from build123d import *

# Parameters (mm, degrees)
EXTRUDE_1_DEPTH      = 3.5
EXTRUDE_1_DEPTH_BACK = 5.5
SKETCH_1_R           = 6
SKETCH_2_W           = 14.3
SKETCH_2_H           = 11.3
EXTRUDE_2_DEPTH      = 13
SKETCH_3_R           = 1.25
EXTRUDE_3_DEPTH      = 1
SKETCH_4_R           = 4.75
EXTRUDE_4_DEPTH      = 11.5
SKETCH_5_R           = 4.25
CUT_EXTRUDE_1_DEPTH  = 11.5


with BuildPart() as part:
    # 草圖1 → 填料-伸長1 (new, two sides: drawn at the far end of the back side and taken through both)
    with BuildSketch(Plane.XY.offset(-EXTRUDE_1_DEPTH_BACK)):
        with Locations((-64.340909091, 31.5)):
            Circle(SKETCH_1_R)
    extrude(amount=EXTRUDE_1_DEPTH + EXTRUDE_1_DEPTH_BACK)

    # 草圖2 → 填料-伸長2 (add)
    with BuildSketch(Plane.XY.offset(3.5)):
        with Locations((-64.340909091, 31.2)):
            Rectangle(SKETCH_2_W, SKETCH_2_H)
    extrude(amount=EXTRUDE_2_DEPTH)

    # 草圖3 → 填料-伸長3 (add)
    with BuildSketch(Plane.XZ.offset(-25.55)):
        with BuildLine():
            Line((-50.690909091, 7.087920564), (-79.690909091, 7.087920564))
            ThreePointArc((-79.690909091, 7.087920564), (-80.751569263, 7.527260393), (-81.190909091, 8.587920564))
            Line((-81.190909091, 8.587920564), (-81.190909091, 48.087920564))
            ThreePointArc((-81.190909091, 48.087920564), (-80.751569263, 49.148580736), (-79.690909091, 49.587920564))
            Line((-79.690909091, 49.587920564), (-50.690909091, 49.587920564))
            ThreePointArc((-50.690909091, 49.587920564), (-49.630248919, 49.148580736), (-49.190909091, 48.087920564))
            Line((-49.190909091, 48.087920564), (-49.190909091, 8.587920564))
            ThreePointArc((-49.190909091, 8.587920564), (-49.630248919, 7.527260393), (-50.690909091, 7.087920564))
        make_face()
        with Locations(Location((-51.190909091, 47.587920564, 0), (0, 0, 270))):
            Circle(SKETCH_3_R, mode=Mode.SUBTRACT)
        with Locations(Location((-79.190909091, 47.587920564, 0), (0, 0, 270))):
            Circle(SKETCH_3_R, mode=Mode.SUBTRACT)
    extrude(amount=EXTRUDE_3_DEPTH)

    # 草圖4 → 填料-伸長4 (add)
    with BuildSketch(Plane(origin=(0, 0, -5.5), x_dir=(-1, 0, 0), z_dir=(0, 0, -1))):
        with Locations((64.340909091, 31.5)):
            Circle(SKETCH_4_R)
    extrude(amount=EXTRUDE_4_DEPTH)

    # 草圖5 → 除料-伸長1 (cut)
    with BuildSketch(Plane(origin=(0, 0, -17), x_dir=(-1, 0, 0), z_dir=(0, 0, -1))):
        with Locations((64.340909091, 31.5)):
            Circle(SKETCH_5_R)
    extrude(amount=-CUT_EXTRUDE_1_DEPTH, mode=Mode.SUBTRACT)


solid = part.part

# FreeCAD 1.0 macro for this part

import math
import FreeCAD as App
import Part
import Sketcher
from FreeCAD import Vector


def add_polygon(sketch, points):
    """Adds a closed chain of lines whose ends are joined by coincident constraints."""
    first, n = sketch.GeometryCount, len(points)
    for a, b in zip(points, points[1:] + points[:1]):
        sketch.addGeometry(Part.LineSegment(App.Vector(*a, 0), App.Vector(*b, 0)), False)
    for i in range(n):
        sketch.addConstraint(Sketcher.Constraint("Coincident", first + i, 2, first + (i + 1) % n, 1))

doc = App.newDocument("Part")
body = doc.addObject("PartDesign::Body", "Body")

sketch1 = doc.addObject("Sketcher::SketchObject", "Sketch")
body.addObject(sketch1)
sketch1.AttachmentSupport = (doc.XY_Plane, [""])
sketch1.MapMode = "FlatFace"
sketch1.addGeometry(Part.Circle(Vector(-64, 32, 0), Vector(0, 0, 1), 6), False)
sketch1.addConstraint([
    Sketcher.Constraint("Diameter", 0, 12.0),
    Sketcher.Constraint("DistanceY", -1, 1, 0, 3, 31.5),
    Sketcher.Constraint("DistanceX", 0, 3, -1, 1, 64.340909),
])
pad1 = doc.addObject("PartDesign::Pad", "Pad")
body.addObject(pad1)
pad1.Profile = sketch1
pad1.Type = "TwoLengths"
pad1.Length = 3.5
pad1.Length2 = 5.5

sketch2 = doc.addObject("Sketcher::SketchObject", "Sketch001")
body.addObject(sketch2)
sketch2.AttachmentSupport = (doc.XY_Plane, [""])
sketch2.MapMode = "FlatFace"
sketch2.AttachmentOffset = App.Placement(Vector(0, 0, 3.5), App.Rotation())
add_polygon(sketch2, [(-71, 37), (-71, 26), (-57, 26), (-57, 37)])
sketch2.addConstraint([
    Sketcher.Constraint("Vertical", 0),
    Sketcher.Constraint("Horizontal", 1),
    Sketcher.Constraint("Vertical", 2),
    Sketcher.Constraint("Horizontal", 3),
    Sketcher.Constraint("DistanceX", 1, 1, 1, 2, 14.3),
    Sketcher.Constraint("DistanceY", 0, 2, 0, 1, 11.3),
    Sketcher.Constraint("DistanceY", -1, 1, 0, 2, 25.55),
    Sketcher.Constraint("DistanceX", 0, 2, -1, 1, 71.490909),
])
pad2 = doc.addObject("PartDesign::Pad", "Pad001")
body.addObject(pad2)
pad2.Profile = sketch2
pad2.Length = 13

sketch3 = doc.addObject("Sketcher::SketchObject", "Sketch002")
body.addObject(sketch3)
sketch3.AttachmentSupport = (doc.XZ_Plane, [""])
sketch3.MapMode = "FlatFace"
sketch3.AttachmentOffset = App.Placement(Vector(0, 0, -25.55), App.Rotation())
sketch3.addGeometry([
    Part.LineSegment(Vector(-79.7, 7.1, 0), Vector(-50.7, 7.1, 0)),
    Part.ArcOfCircle(Part.Circle(Vector(-50.7, 8.6, 0), Vector(0, 0, 1), 1.5), math.radians(-90), math.radians(0)),
    Part.LineSegment(Vector(-49.2, 8.6, 0), Vector(-49.2, 48.1, 0)),
    Part.ArcOfCircle(Part.Circle(Vector(-50.7, 48.1, 0), Vector(0, 0, 1), 1.5), math.radians(0), math.radians(90)),
    Part.LineSegment(Vector(-50.7, 49.6, 0), Vector(-79.7, 49.6, 0)),
    Part.ArcOfCircle(Part.Circle(Vector(-79.7, 48.1, 0), Vector(0, 0, 1), 1.5), math.radians(90), math.radians(180)),
    Part.LineSegment(Vector(-81.2, 48.1, 0), Vector(-81.2, 8.6, 0)),
    Part.ArcOfCircle(Part.Circle(Vector(-79.7, 8.6, 0), Vector(0, 0, 1), 1.5), math.radians(-180), math.radians(-90)),
    Part.Circle(Vector(-51.2, 47.6, 0), Vector(0, 0, 1), 1.2),
    Part.Circle(Vector(-79.2, 47.6, 0), Vector(0, 0, 1), 1.2),
], False)
sketch3.addConstraint([
    Sketcher.Constraint("Tangent", 0, 2, 1, 1),
    Sketcher.Constraint("Tangent", 1, 2, 2, 1),
    Sketcher.Constraint("Tangent", 2, 2, 3, 1),
    Sketcher.Constraint("Tangent", 3, 2, 4, 1),
    Sketcher.Constraint("Tangent", 4, 2, 5, 1),
    Sketcher.Constraint("Tangent", 5, 2, 6, 1),
    Sketcher.Constraint("Tangent", 6, 2, 7, 1),
    Sketcher.Constraint("Tangent", 7, 2, 0, 1),
    Sketcher.Constraint("Horizontal", 0),
    Sketcher.Constraint("Vertical", 2),
    Sketcher.Constraint("Horizontal", 4),
    Sketcher.Constraint("Vertical", 6),
    Sketcher.Constraint("Equal", 1, 3),
    Sketcher.Constraint("Equal", 3, 5),
    Sketcher.Constraint("Equal", 5, 7),
    Sketcher.Constraint("Equal", 8, 9),
    Sketcher.Constraint("Horizontal", 8, 3, 9, 3),
    Sketcher.Constraint("Diameter", 8, 2.5),
    Sketcher.Constraint("Radius", 1, 1.5),
    Sketcher.Constraint("DistanceX", 0, 1, 0, 2, 29.0),
    Sketcher.Constraint("DistanceY", 2, 1, 2, 2, 39.5),
    Sketcher.Constraint("DistanceY", 1, 3, 8, 3, 39.0),
    Sketcher.Constraint("DistanceX", 9, 3, 8, 3, 28.0),
    Sketcher.Constraint("DistanceX", 8, 3, 1, 2, 2.0),
    Sketcher.Constraint("DistanceX", 1, 3, -1, 1, 50.690909),
    Sketcher.Constraint("DistanceY", -1, 1, 1, 3, 8.587921),
])
pad3 = doc.addObject("PartDesign::Pad", "Pad002")
body.addObject(pad3)
pad3.Profile = sketch3
pad3.Length = 1

sketch4 = doc.addObject("Sketcher::SketchObject", "Sketch003")
body.addObject(sketch4)
sketch4.AttachmentSupport = (doc.XY_Plane, [""])
sketch4.MapMode = "FlatFace"
sketch4.AttachmentOffset = App.Placement(Vector(0, 0, -5.5), App.Rotation())
sketch4.addGeometry(Part.Circle(Vector(-64.3, 31.5, 0), Vector(0, 0, 1), 4.8), False)
sketch4.addConstraint([
    Sketcher.Constraint("Diameter", 0, 9.5),
    Sketcher.Constraint("DistanceY", -1, 1, 0, 3, 31.5),
    Sketcher.Constraint("DistanceX", 0, 3, -1, 1, 64.340909),
])
pad4 = doc.addObject("PartDesign::Pad", "Pad003")
body.addObject(pad4)
pad4.Profile = sketch4
pad4.Length = 11.5
pad4.Reversed = True

sketch5 = doc.addObject("Sketcher::SketchObject", "Sketch004")
body.addObject(sketch5)
sketch5.AttachmentSupport = (doc.XY_Plane, [""])
sketch5.MapMode = "FlatFace"
sketch5.AttachmentOffset = App.Placement(Vector(0, 0, -17), App.Rotation())
sketch5.addGeometry(Part.Circle(Vector(-64.3, 31.5, 0), Vector(0, 0, 1), 4.2), False)
sketch5.addConstraint([
    Sketcher.Constraint("Diameter", 0, 8.5),
    Sketcher.Constraint("DistanceY", -1, 1, 0, 3, 31.5),
    Sketcher.Constraint("DistanceX", 0, 3, -1, 1, 64.340909),
])
pocket1 = doc.addObject("PartDesign::Pocket", "Pocket")
body.addObject(pocket1)
pocket1.Profile = sketch5
pocket1.Length = 11.5
pocket1.Reversed = True

doc.recompute()
